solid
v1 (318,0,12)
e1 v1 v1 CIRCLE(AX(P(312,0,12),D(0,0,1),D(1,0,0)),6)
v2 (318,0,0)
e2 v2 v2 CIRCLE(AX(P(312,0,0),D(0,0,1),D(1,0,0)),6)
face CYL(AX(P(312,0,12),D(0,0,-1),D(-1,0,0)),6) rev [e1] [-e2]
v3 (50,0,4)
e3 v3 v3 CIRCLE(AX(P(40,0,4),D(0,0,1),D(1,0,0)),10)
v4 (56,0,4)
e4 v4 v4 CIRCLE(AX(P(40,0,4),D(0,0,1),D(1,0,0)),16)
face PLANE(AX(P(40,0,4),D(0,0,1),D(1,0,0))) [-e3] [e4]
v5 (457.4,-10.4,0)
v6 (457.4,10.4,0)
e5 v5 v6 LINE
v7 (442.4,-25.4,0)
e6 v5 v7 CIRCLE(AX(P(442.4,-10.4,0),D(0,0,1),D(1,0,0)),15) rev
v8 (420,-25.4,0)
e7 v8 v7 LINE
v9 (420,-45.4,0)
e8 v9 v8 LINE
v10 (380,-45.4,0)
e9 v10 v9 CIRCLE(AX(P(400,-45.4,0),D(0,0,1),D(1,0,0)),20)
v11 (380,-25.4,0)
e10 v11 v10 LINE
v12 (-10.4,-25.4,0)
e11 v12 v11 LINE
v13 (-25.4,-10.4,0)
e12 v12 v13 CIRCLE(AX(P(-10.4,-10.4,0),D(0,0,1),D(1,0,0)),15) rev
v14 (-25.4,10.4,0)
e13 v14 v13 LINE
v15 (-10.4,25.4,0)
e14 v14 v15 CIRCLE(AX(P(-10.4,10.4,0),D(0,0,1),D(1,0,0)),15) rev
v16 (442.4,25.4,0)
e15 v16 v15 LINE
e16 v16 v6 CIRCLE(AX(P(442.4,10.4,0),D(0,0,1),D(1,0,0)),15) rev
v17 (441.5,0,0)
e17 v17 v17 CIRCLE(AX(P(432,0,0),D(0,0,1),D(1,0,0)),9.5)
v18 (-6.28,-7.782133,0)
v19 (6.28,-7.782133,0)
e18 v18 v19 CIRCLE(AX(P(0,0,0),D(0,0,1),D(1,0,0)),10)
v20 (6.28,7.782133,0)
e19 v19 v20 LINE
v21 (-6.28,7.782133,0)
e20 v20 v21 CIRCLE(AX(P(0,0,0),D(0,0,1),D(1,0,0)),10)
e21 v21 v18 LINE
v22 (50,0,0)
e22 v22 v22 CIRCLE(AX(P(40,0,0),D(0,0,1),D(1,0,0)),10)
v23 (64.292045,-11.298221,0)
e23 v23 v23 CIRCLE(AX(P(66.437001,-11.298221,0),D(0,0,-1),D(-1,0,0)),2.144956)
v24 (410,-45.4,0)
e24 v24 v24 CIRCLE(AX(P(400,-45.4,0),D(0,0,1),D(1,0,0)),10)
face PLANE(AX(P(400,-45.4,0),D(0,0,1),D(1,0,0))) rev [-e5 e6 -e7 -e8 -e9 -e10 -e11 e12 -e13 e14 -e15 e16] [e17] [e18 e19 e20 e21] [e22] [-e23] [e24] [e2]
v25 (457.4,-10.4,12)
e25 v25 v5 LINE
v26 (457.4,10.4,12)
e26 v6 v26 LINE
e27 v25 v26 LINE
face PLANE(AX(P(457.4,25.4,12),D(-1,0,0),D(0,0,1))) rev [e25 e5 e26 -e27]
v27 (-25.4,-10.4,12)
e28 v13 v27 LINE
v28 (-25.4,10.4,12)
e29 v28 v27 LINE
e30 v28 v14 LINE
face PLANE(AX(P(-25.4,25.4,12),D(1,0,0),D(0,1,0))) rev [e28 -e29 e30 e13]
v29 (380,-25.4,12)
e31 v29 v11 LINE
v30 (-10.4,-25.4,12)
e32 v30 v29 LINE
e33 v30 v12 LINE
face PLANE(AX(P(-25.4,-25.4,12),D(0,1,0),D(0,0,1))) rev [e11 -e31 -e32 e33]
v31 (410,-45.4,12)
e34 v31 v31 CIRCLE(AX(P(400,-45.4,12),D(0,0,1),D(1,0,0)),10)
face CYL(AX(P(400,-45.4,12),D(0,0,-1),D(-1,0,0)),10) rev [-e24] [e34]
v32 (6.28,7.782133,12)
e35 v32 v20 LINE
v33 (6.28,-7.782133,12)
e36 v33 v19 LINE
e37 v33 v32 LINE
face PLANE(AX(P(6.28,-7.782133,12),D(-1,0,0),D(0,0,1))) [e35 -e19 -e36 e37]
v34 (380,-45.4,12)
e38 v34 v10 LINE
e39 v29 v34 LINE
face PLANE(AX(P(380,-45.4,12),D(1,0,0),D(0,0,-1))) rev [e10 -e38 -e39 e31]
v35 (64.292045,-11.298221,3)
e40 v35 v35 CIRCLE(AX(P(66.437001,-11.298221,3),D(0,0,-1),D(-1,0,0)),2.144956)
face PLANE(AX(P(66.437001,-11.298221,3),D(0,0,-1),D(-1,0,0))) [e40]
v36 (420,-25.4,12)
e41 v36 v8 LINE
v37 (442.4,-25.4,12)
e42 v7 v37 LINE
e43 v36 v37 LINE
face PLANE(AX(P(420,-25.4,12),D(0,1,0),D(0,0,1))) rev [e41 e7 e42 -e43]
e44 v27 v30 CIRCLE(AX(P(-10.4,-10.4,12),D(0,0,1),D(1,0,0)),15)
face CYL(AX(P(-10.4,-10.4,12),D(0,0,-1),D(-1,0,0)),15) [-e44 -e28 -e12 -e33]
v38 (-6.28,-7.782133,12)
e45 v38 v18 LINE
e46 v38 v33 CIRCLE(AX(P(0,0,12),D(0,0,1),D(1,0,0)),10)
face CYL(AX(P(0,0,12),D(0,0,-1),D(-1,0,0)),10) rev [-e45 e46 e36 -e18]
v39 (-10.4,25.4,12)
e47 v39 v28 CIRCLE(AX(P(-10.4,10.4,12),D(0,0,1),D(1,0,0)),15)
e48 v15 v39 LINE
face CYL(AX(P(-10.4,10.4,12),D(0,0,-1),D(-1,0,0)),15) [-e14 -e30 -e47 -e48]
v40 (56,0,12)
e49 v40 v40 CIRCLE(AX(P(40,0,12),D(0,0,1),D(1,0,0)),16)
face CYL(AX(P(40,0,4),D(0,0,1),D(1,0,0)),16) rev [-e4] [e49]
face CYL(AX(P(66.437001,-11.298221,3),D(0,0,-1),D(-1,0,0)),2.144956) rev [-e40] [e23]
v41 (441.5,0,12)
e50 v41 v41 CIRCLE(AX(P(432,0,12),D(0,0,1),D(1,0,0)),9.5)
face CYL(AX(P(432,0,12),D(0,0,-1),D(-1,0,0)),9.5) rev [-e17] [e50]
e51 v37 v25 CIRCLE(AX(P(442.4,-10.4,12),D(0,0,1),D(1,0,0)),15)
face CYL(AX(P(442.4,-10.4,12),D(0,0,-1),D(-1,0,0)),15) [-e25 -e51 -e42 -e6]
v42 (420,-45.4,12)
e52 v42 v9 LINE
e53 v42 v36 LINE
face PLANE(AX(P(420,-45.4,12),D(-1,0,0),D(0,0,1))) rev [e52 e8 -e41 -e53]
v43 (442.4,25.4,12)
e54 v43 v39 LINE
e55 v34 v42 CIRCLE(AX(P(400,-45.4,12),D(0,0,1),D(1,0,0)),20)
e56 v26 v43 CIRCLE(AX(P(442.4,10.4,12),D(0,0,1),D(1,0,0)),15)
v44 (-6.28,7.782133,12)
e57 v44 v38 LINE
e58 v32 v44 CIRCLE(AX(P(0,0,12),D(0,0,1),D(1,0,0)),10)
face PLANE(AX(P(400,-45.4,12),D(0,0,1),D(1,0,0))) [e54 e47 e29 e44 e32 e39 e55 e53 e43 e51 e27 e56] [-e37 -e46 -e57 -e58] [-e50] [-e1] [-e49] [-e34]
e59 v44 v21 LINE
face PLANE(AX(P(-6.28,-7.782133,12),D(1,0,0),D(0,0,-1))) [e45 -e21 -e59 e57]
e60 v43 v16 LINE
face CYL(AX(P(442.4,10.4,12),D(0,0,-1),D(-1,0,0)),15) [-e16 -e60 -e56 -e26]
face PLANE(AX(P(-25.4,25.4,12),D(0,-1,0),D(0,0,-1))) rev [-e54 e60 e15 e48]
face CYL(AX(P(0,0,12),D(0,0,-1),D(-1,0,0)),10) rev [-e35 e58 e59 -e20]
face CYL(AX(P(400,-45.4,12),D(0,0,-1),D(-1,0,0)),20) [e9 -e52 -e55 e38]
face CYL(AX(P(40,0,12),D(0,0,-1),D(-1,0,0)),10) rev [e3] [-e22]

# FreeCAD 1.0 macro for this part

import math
import FreeCAD as App
import Part
import Sketcher

V = App.Vector


def edges_at(feature, points):
    """Names of the edges that pass closest to the given points."""
    edges = feature.Shape.Edges
    near = lambda p: min(range(len(edges)), key=lambda i: edges[i].distToShape(Part.Vertex(*p))[0])
    return sorted({f"Edge{near(p) + 1}" for p in points})

doc = App.newDocument("Part")
body = doc.addObject("PartDesign::Body", "Body")

# Sketch on XY plane
sketch1 = body.newObject("Sketcher::SketchObject", "Sketch")
sketch1.AttachmentSupport = (doc.getObject("XY_Plane"), [""])
sketch1.MapMode = "FlatFace"
sketch1.addGeometry(Part.LineSegment(V(380, -25, 0), V(380, -45, 0)), False)
sketch1.addGeometry(Part.ArcOfCircle(Part.Circle(V(400, -45, 0), V(0, 0, 1), 20), math.radians(180), math.radians(360)), False)
sketch1.addGeometry(Part.LineSegment(V(420, -45, 0), V(420, -25, 0)), False)
sketch1.addGeometry(Part.LineSegment(V(420, -25, 0), V(457, -25, 0)), False)
sketch1.addGeometry(Part.LineSegment(V(457, -25, 0), V(457, 25, 0)), False)
sketch1.addGeometry(Part.LineSegment(V(457, 25, 0), V(-25, 25, 0)), False)
sketch1.addGeometry(Part.LineSegment(V(-25, 25, 0), V(-25, -25, 0)), False)
sketch1.addGeometry(Part.LineSegment(V(-25, -25, 0), V(380, -25, 0)), False)
sketch1.addGeometry(Part.Circle(V(400, -45, 0), V(0, 0, 1), 10), False)
sketch1.addGeometry(Part.Circle(V(432, 0, 0), V(0, 0, 1), 10), False)
sketch1.addGeometry(Part.Circle(V(312, 0, 0), V(0, 0, 1), 6), False)
sketch1.addGeometry(Part.Circle(V(40, 0, 0), V(0, 0, 1), 10), False)
sketch1.addGeometry(Part.LineSegment(V(-6, -8, 0), V(-6, 8, 0)), False)
sketch1.addGeometry(Part.ArcOfCircle(Part.Circle(V(0, 0, 0), V(0, 0, 1), 10), math.radians(51), math.radians(129)), False)
sketch1.addGeometry(Part.LineSegment(V(6, 8, 0), V(6, -8, 0)), False)
sketch1.addGeometry(Part.ArcOfCircle(Part.Circle(V(0, 0, 0), V(0, 0, 1), 10), math.radians(-129), math.radians(-51)), False)
sketch1.addConstraint(Sketcher.Constraint("Tangent", 0, 2, 1, 1))
sketch1.addConstraint(Sketcher.Constraint("Tangent", 1, 2, 2, 1))
sketch1.addConstraint(Sketcher.Constraint("Coincident", 2, 2, 3, 1))
sketch1.addConstraint(Sketcher.Constraint("Coincident", 3, 2, 4, 1))
sketch1.addConstraint(Sketcher.Constraint("Coincident", 4, 2, 5, 1))
sketch1.addConstraint(Sketcher.Constraint("Coincident", 5, 2, 6, 1))
sketch1.addConstraint(Sketcher.Constraint("Coincident", 6, 2, 7, 1))
sketch1.addConstraint(Sketcher.Constraint("Coincident", 7, 2, 0, 1))
sketch1.addConstraint(Sketcher.Constraint("Coincident", 12, 2, 13, 2))
sketch1.addConstraint(Sketcher.Constraint("Coincident", 13, 1, 14, 1))
sketch1.addConstraint(Sketcher.Constraint("Coincident", 14, 2, 15, 2))
sketch1.addConstraint(Sketcher.Constraint("Coincident", 15, 1, 12, 1))
sketch1.addConstraint(Sketcher.Constraint("Vertical", 0))
sketch1.addConstraint(Sketcher.Constraint("Vertical", 2))
sketch1.addConstraint(Sketcher.Constraint("Horizontal", 3))
sketch1.addConstraint(Sketcher.Constraint("Vertical", 4))
sketch1.addConstraint(Sketcher.Constraint("Horizontal", 5))
sketch1.addConstraint(Sketcher.Constraint("Vertical", 6))
sketch1.addConstraint(Sketcher.Constraint("Horizontal", 7))
sketch1.addConstraint(Sketcher.Constraint("Vertical", 12))
sketch1.addConstraint(Sketcher.Constraint("Vertical", 14))
sketch1.addConstraint(Sketcher.Constraint("Coincident", 13, 3, -1, 1))
sketch1.addConstraint(Sketcher.Constraint("Coincident", 15, 3, -1, 1))
sketch1.addConstraint(Sketcher.Constraint("Coincident", 8, 3, 1, 3))
sketch1.addConstraint(Sketcher.Constraint("Equal", 8, 11))
sketch1.addConstraint(Sketcher.Constraint("Equal", 11, 13))
sketch1.addConstraint(Sketcher.Constraint("Equal", 13, 15))
sketch1.addConstraint(Sketcher.Constraint("PointOnObject", 9, 3, -1))
sketch1.addConstraint(Sketcher.Constraint("PointOnObject", 10, 3, -1))
sketch1.addConstraint(Sketcher.Constraint("PointOnObject", 11, 3, -1))
sketch1.addConstraint(Sketcher.Constraint("Horizontal", 3, 2, 6, 2))
sketch1.addConstraint(Sketcher.Constraint("Horizontal", 12, 2, 13, 1))
sketch1.addConstraint(Sketcher.Constraint("Diameter", 8, 20.0))
sketch1.addConstraint(Sketcher.Constraint("Diameter", 9, 19.0))
sketch1.addConstraint(Sketcher.Constraint("Diameter", 10, 12.0))
sketch1.addConstraint(Sketcher.Constraint("Radius", 1, 20.0))
sketch1.addConstraint(Sketcher.Constraint("DistanceY", 0, 2, 0, 1, 20.0))
sketch1.addConstraint(Sketcher.Constraint("DistanceX", 3, 1, 3, 2, 37.4))
sketch1.addConstraint(Sketcher.Constraint("DistanceX", 5, 2, 5, 1, 482.8))
sketch1.addConstraint(Sketcher.Constraint("DistanceY", 4, 1, 4, 2, 50.8))
sketch1.addConstraint(Sketcher.Constraint("DistanceX", -1, 1, 1, 3, 400.0))
sketch1.addConstraint(Sketcher.Constraint("DistanceX", -1, 1, 9, 3, 432.0))
sketch1.addConstraint(Sketcher.Constraint("DistanceX", -1, 1, 10, 3, 312.0))
sketch1.addConstraint(Sketcher.Constraint("DistanceX", -1, 1, 11, 3, 40.0))
sketch1.addConstraint(Sketcher.Constraint("DistanceY", 1, 3, -1, 1, 45.4))
sketch1.addConstraint(Sketcher.Constraint("DistanceX", 12, 2, -1, 1, 6.28))
pad1 = body.newObject("PartDesign::Pad", "Pad")
pad1.Profile = sketch1
pad1.Length = 12

# Sketch on XY plane
sketch2 = body.newObject("Sketcher::SketchObject", "Sketch001")
sketch2.AttachmentSupport = (doc.getObject("XY_Plane"), [""])
sketch2.MapMode = "FlatFace"
sketch2.addGeometry(Part.Circle(V(66.4, -11.3, 0), V(0, 0, 1), 2.1), False)
sketch2.addConstraint(Sketcher.Constraint("Diameter", 0, 4.289912))
sketch2.addConstraint(Sketcher.Constraint("DistanceX", -1, 1, 0, 3, 66.437001))
sketch2.addConstraint(Sketcher.Constraint("DistanceY", 0, 3, -1, 1, 11.298221))
pocket1 = body.newObject("PartDesign::Pocket", "Pocket")
pocket1.Profile = sketch2
pocket1.Length = 3
pocket1.Reversed = True
doc.recompute()

fillet = body.newObject("PartDesign::Fillet", "Fillet")
fillet.Base = (pocket1, edges_at(pocket1, [(-25.4, 25.4, 6), (-25.4, -25.4, 6)]))
fillet.Radius = 15
doc.recompute()

fillet2 = body.newObject("PartDesign::Fillet", "Fillet001")
fillet2.Base = (fillet, edges_at(fillet, [(457.4, 25.4, 6), (457.4, -25.4, 6)]))
fillet2.Radius = 15

# Sketch on XY plane
sketch3 = body.newObject("Sketcher::SketchObject", "Sketch002")
sketch3.AttachmentSupport = (doc.getObject("XY_Plane"), [""])
sketch3.MapMode = "FlatFace"
sketch3.AttachmentOffset = App.Placement(V(0, 0, 12), App.Rotation())
sketch3.addGeometry(Part.Circle(V(40, 0, 0), V(0, 0, 1), 16), False)
sketch3.addConstraint(Sketcher.Constraint("PointOnObject", 0, 3, -1))
sketch3.addConstraint(Sketcher.Constraint("Diameter", 0, 32.0))
sketch3.addConstraint(Sketcher.Constraint("DistanceX", -1, 1, 0, 3, 40.0))
pocket2 = body.newObject("PartDesign::Pocket", "Pocket001")
pocket2.Profile = sketch3
pocket2.Length = 8

doc.recompute()
